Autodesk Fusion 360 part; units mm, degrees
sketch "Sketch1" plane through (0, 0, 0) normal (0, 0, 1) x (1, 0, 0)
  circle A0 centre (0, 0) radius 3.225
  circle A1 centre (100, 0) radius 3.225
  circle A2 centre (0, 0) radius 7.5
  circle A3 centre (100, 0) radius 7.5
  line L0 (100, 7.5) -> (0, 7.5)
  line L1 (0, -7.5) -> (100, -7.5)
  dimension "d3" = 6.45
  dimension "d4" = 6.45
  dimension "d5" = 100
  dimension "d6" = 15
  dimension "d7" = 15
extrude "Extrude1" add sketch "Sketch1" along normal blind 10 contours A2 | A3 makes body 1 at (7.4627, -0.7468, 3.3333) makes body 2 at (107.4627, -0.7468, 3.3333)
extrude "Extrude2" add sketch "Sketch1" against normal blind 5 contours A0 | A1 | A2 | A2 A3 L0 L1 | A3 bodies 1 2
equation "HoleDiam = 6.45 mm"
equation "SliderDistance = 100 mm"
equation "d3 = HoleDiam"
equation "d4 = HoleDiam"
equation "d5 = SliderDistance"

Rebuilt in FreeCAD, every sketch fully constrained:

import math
import FreeCAD as App
import Part
import Sketcher

V = App.Vector
Q = App.Units.Quantity

doc = App.newDocument("Part")
body = doc.addObject("PartDesign::Body", "Body")
body.AllowCompound = True

sketch1 = body.newObject("Sketcher::SketchObject", "Sketch")
sketch1.AttachmentSupport = (doc.getObject("XY_Plane"), [""])
sketch1.MapMode = "FlatFace"
sketch1.addGeometry(Part.Circle(V(0, 0, 0), V(0, 0, 1), 7.5), False)
sketch1.addGeometry(Part.Circle(V(0, 0, 0), V(0, 0, 1), 3.2), False)
sketch1.addGeometry(Part.Circle(V(100, 0, 0), V(0, 0, 1), 7.5), False)
sketch1.addGeometry(Part.Circle(V(100, 0, 0), V(0, 0, 1), 3.2), False)
sketch1.addConstraint(Sketcher.Constraint("Coincident", 0, 3, -1, 1))
sketch1.addConstraint(Sketcher.Constraint("Coincident", 1, 3, -1, 1))
sketch1.addConstraint(Sketcher.Constraint("Coincident", 3, 3, 2, 3))
sketch1.addConstraint(Sketcher.Constraint("Equal", 0, 2))
sketch1.addConstraint(Sketcher.Constraint("Equal", 1, 3))
sketch1.addConstraint(Sketcher.Constraint("PointOnObject", 2, 3, -1))
sketch1.addConstraint(Sketcher.Constraint("Diameter", 0, Q("15 mm")))
sketch1.addConstraint(Sketcher.Constraint("Diameter", 1, Q("6.45 mm")))
sketch1.addConstraint(Sketcher.Constraint("DistanceX", -1, 1, 2, 3, Q("100 mm")))
pad1 = body.newObject("PartDesign::Pad", "Pad")
pad1.Profile = sketch1
pad1.Length = 10

sketch2 = body.newObject("Sketcher::SketchObject", "Sketch001")
sketch2.AttachmentSupport = (doc.getObject("XY_Plane"), [""])
sketch2.MapMode = "FlatFace"
sketch2.addGeometry(Part.ArcOfCircle(Part.Circle(V(0, 0, 0), V(0, 0, 1), 8), math.radians(90), math.radians(270)), False)
sketch2.addGeometry(Part.LineSegment(V(0, -8, 0), V(100, -8, 0)), False)
sketch2.addGeometry(Part.ArcOfCircle(Part.Circle(V(100, 0, 0), V(0, 0, 1), 8), math.radians(-90), math.radians(90)), False)
sketch2.addGeometry(Part.LineSegment(V(100, 8, 0), V(0, 8, 0)), False)
sketch2.addConstraint(Sketcher.Constraint("Tangent", 0, 2, 1, 1))
sketch2.addConstraint(Sketcher.Constraint("Tangent", 1, 2, 2, 1))
sketch2.addConstraint(Sketcher.Constraint("Tangent", 2, 2, 3, 1))
sketch2.addConstraint(Sketcher.Constraint("Tangent", 3, 2, 0, 1))
sketch2.addConstraint(Sketcher.Constraint("Horizontal", 1))
sketch2.addConstraint(Sketcher.Constraint("Horizontal", 3))
sketch2.addConstraint(Sketcher.Constraint("Coincident", 0, 3, -1, 1))
sketch2.addConstraint(Sketcher.Constraint("Radius", 0, Q("7.5 mm")))
sketch2.addConstraint(Sketcher.Constraint("DistanceX", 1, 1, 1, 2, Q("100 mm")))
pad2 = body.newObject("PartDesign::Pad", "Pad001")
pad2.Profile = sketch2
pad2.Length = 5
pad2.Reversed = True

doc.recompute()
